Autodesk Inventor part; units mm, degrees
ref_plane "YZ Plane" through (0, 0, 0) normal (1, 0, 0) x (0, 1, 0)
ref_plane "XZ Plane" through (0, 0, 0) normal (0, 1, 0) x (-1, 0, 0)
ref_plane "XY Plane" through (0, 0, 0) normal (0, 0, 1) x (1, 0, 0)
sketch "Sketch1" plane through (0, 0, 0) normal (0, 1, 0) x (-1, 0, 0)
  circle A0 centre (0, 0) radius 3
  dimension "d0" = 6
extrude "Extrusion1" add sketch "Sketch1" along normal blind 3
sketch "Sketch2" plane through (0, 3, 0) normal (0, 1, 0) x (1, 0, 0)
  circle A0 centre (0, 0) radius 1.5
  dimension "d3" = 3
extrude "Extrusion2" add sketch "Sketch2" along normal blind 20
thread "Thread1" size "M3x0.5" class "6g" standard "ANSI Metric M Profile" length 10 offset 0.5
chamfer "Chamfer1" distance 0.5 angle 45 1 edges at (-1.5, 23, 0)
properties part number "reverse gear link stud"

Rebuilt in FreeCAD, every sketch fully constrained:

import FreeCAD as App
import Part
import Sketcher
from FreeCAD import Vector
Q = App.Units.Quantity


def edges_at(feature, points):
    """Names of the edges that pass closest to the given points."""
    edges = feature.Shape.Edges
    near = lambda p: min(range(len(edges)), key=lambda i: edges[i].distToShape(Part.Vertex(*p))[0])
    return sorted({f"Edge{near(p) + 1}" for p in points})

doc = App.newDocument("Part")
body = doc.addObject("PartDesign::Body", "Body")

# Sketch on XZ plane
sketch1 = body.newObject("Sketcher::SketchObject", "Sketch")
sketch1.AttachmentSupport = (doc.getObject("XZ_Plane"), [""])
sketch1.MapMode = "FlatFace"
sketch1.addGeometry(Part.Circle(Vector(0, 0, 0), Vector(0, 0, 1), 3), False)
sketch1.addConstraint(Sketcher.Constraint("Coincident", 0, 3, -1, 1))
sketch1.addConstraint(Sketcher.Constraint("Diameter", 0, Q("6 mm")))
pad1 = body.newObject("PartDesign::Pad", "Pad")
pad1.Profile = sketch1
pad1.Length = 3
pad1.Reversed = True

# Sketch on XZ plane
sketch2 = body.newObject("Sketcher::SketchObject", "Sketch001")
sketch2.AttachmentSupport = (doc.getObject("XZ_Plane"), [""])
sketch2.MapMode = "FlatFace"
sketch2.AttachmentOffset = App.Placement(Vector(0, 0, -3), App.Rotation())
sketch2.addGeometry(Part.Circle(Vector(0, 0, 0), Vector(0, 0, 1), 1.5), False)
sketch2.addConstraint(Sketcher.Constraint("Coincident", 0, 3, -1, 1))
sketch2.addConstraint(Sketcher.Constraint("Diameter", 0, Q("3 mm")))
pad2 = body.newObject("PartDesign::Pad", "Pad001")
pad2.Profile = sketch2
pad2.Length = 20
pad2.Reversed = True
doc.recompute()

chamfer = body.newObject("PartDesign::Chamfer", "Chamfer")
chamfer.Base = (pad2, edges_at(pad2, [(-1.5, 23, 0)]))
chamfer.Size = 0.5

doc.recompute()
